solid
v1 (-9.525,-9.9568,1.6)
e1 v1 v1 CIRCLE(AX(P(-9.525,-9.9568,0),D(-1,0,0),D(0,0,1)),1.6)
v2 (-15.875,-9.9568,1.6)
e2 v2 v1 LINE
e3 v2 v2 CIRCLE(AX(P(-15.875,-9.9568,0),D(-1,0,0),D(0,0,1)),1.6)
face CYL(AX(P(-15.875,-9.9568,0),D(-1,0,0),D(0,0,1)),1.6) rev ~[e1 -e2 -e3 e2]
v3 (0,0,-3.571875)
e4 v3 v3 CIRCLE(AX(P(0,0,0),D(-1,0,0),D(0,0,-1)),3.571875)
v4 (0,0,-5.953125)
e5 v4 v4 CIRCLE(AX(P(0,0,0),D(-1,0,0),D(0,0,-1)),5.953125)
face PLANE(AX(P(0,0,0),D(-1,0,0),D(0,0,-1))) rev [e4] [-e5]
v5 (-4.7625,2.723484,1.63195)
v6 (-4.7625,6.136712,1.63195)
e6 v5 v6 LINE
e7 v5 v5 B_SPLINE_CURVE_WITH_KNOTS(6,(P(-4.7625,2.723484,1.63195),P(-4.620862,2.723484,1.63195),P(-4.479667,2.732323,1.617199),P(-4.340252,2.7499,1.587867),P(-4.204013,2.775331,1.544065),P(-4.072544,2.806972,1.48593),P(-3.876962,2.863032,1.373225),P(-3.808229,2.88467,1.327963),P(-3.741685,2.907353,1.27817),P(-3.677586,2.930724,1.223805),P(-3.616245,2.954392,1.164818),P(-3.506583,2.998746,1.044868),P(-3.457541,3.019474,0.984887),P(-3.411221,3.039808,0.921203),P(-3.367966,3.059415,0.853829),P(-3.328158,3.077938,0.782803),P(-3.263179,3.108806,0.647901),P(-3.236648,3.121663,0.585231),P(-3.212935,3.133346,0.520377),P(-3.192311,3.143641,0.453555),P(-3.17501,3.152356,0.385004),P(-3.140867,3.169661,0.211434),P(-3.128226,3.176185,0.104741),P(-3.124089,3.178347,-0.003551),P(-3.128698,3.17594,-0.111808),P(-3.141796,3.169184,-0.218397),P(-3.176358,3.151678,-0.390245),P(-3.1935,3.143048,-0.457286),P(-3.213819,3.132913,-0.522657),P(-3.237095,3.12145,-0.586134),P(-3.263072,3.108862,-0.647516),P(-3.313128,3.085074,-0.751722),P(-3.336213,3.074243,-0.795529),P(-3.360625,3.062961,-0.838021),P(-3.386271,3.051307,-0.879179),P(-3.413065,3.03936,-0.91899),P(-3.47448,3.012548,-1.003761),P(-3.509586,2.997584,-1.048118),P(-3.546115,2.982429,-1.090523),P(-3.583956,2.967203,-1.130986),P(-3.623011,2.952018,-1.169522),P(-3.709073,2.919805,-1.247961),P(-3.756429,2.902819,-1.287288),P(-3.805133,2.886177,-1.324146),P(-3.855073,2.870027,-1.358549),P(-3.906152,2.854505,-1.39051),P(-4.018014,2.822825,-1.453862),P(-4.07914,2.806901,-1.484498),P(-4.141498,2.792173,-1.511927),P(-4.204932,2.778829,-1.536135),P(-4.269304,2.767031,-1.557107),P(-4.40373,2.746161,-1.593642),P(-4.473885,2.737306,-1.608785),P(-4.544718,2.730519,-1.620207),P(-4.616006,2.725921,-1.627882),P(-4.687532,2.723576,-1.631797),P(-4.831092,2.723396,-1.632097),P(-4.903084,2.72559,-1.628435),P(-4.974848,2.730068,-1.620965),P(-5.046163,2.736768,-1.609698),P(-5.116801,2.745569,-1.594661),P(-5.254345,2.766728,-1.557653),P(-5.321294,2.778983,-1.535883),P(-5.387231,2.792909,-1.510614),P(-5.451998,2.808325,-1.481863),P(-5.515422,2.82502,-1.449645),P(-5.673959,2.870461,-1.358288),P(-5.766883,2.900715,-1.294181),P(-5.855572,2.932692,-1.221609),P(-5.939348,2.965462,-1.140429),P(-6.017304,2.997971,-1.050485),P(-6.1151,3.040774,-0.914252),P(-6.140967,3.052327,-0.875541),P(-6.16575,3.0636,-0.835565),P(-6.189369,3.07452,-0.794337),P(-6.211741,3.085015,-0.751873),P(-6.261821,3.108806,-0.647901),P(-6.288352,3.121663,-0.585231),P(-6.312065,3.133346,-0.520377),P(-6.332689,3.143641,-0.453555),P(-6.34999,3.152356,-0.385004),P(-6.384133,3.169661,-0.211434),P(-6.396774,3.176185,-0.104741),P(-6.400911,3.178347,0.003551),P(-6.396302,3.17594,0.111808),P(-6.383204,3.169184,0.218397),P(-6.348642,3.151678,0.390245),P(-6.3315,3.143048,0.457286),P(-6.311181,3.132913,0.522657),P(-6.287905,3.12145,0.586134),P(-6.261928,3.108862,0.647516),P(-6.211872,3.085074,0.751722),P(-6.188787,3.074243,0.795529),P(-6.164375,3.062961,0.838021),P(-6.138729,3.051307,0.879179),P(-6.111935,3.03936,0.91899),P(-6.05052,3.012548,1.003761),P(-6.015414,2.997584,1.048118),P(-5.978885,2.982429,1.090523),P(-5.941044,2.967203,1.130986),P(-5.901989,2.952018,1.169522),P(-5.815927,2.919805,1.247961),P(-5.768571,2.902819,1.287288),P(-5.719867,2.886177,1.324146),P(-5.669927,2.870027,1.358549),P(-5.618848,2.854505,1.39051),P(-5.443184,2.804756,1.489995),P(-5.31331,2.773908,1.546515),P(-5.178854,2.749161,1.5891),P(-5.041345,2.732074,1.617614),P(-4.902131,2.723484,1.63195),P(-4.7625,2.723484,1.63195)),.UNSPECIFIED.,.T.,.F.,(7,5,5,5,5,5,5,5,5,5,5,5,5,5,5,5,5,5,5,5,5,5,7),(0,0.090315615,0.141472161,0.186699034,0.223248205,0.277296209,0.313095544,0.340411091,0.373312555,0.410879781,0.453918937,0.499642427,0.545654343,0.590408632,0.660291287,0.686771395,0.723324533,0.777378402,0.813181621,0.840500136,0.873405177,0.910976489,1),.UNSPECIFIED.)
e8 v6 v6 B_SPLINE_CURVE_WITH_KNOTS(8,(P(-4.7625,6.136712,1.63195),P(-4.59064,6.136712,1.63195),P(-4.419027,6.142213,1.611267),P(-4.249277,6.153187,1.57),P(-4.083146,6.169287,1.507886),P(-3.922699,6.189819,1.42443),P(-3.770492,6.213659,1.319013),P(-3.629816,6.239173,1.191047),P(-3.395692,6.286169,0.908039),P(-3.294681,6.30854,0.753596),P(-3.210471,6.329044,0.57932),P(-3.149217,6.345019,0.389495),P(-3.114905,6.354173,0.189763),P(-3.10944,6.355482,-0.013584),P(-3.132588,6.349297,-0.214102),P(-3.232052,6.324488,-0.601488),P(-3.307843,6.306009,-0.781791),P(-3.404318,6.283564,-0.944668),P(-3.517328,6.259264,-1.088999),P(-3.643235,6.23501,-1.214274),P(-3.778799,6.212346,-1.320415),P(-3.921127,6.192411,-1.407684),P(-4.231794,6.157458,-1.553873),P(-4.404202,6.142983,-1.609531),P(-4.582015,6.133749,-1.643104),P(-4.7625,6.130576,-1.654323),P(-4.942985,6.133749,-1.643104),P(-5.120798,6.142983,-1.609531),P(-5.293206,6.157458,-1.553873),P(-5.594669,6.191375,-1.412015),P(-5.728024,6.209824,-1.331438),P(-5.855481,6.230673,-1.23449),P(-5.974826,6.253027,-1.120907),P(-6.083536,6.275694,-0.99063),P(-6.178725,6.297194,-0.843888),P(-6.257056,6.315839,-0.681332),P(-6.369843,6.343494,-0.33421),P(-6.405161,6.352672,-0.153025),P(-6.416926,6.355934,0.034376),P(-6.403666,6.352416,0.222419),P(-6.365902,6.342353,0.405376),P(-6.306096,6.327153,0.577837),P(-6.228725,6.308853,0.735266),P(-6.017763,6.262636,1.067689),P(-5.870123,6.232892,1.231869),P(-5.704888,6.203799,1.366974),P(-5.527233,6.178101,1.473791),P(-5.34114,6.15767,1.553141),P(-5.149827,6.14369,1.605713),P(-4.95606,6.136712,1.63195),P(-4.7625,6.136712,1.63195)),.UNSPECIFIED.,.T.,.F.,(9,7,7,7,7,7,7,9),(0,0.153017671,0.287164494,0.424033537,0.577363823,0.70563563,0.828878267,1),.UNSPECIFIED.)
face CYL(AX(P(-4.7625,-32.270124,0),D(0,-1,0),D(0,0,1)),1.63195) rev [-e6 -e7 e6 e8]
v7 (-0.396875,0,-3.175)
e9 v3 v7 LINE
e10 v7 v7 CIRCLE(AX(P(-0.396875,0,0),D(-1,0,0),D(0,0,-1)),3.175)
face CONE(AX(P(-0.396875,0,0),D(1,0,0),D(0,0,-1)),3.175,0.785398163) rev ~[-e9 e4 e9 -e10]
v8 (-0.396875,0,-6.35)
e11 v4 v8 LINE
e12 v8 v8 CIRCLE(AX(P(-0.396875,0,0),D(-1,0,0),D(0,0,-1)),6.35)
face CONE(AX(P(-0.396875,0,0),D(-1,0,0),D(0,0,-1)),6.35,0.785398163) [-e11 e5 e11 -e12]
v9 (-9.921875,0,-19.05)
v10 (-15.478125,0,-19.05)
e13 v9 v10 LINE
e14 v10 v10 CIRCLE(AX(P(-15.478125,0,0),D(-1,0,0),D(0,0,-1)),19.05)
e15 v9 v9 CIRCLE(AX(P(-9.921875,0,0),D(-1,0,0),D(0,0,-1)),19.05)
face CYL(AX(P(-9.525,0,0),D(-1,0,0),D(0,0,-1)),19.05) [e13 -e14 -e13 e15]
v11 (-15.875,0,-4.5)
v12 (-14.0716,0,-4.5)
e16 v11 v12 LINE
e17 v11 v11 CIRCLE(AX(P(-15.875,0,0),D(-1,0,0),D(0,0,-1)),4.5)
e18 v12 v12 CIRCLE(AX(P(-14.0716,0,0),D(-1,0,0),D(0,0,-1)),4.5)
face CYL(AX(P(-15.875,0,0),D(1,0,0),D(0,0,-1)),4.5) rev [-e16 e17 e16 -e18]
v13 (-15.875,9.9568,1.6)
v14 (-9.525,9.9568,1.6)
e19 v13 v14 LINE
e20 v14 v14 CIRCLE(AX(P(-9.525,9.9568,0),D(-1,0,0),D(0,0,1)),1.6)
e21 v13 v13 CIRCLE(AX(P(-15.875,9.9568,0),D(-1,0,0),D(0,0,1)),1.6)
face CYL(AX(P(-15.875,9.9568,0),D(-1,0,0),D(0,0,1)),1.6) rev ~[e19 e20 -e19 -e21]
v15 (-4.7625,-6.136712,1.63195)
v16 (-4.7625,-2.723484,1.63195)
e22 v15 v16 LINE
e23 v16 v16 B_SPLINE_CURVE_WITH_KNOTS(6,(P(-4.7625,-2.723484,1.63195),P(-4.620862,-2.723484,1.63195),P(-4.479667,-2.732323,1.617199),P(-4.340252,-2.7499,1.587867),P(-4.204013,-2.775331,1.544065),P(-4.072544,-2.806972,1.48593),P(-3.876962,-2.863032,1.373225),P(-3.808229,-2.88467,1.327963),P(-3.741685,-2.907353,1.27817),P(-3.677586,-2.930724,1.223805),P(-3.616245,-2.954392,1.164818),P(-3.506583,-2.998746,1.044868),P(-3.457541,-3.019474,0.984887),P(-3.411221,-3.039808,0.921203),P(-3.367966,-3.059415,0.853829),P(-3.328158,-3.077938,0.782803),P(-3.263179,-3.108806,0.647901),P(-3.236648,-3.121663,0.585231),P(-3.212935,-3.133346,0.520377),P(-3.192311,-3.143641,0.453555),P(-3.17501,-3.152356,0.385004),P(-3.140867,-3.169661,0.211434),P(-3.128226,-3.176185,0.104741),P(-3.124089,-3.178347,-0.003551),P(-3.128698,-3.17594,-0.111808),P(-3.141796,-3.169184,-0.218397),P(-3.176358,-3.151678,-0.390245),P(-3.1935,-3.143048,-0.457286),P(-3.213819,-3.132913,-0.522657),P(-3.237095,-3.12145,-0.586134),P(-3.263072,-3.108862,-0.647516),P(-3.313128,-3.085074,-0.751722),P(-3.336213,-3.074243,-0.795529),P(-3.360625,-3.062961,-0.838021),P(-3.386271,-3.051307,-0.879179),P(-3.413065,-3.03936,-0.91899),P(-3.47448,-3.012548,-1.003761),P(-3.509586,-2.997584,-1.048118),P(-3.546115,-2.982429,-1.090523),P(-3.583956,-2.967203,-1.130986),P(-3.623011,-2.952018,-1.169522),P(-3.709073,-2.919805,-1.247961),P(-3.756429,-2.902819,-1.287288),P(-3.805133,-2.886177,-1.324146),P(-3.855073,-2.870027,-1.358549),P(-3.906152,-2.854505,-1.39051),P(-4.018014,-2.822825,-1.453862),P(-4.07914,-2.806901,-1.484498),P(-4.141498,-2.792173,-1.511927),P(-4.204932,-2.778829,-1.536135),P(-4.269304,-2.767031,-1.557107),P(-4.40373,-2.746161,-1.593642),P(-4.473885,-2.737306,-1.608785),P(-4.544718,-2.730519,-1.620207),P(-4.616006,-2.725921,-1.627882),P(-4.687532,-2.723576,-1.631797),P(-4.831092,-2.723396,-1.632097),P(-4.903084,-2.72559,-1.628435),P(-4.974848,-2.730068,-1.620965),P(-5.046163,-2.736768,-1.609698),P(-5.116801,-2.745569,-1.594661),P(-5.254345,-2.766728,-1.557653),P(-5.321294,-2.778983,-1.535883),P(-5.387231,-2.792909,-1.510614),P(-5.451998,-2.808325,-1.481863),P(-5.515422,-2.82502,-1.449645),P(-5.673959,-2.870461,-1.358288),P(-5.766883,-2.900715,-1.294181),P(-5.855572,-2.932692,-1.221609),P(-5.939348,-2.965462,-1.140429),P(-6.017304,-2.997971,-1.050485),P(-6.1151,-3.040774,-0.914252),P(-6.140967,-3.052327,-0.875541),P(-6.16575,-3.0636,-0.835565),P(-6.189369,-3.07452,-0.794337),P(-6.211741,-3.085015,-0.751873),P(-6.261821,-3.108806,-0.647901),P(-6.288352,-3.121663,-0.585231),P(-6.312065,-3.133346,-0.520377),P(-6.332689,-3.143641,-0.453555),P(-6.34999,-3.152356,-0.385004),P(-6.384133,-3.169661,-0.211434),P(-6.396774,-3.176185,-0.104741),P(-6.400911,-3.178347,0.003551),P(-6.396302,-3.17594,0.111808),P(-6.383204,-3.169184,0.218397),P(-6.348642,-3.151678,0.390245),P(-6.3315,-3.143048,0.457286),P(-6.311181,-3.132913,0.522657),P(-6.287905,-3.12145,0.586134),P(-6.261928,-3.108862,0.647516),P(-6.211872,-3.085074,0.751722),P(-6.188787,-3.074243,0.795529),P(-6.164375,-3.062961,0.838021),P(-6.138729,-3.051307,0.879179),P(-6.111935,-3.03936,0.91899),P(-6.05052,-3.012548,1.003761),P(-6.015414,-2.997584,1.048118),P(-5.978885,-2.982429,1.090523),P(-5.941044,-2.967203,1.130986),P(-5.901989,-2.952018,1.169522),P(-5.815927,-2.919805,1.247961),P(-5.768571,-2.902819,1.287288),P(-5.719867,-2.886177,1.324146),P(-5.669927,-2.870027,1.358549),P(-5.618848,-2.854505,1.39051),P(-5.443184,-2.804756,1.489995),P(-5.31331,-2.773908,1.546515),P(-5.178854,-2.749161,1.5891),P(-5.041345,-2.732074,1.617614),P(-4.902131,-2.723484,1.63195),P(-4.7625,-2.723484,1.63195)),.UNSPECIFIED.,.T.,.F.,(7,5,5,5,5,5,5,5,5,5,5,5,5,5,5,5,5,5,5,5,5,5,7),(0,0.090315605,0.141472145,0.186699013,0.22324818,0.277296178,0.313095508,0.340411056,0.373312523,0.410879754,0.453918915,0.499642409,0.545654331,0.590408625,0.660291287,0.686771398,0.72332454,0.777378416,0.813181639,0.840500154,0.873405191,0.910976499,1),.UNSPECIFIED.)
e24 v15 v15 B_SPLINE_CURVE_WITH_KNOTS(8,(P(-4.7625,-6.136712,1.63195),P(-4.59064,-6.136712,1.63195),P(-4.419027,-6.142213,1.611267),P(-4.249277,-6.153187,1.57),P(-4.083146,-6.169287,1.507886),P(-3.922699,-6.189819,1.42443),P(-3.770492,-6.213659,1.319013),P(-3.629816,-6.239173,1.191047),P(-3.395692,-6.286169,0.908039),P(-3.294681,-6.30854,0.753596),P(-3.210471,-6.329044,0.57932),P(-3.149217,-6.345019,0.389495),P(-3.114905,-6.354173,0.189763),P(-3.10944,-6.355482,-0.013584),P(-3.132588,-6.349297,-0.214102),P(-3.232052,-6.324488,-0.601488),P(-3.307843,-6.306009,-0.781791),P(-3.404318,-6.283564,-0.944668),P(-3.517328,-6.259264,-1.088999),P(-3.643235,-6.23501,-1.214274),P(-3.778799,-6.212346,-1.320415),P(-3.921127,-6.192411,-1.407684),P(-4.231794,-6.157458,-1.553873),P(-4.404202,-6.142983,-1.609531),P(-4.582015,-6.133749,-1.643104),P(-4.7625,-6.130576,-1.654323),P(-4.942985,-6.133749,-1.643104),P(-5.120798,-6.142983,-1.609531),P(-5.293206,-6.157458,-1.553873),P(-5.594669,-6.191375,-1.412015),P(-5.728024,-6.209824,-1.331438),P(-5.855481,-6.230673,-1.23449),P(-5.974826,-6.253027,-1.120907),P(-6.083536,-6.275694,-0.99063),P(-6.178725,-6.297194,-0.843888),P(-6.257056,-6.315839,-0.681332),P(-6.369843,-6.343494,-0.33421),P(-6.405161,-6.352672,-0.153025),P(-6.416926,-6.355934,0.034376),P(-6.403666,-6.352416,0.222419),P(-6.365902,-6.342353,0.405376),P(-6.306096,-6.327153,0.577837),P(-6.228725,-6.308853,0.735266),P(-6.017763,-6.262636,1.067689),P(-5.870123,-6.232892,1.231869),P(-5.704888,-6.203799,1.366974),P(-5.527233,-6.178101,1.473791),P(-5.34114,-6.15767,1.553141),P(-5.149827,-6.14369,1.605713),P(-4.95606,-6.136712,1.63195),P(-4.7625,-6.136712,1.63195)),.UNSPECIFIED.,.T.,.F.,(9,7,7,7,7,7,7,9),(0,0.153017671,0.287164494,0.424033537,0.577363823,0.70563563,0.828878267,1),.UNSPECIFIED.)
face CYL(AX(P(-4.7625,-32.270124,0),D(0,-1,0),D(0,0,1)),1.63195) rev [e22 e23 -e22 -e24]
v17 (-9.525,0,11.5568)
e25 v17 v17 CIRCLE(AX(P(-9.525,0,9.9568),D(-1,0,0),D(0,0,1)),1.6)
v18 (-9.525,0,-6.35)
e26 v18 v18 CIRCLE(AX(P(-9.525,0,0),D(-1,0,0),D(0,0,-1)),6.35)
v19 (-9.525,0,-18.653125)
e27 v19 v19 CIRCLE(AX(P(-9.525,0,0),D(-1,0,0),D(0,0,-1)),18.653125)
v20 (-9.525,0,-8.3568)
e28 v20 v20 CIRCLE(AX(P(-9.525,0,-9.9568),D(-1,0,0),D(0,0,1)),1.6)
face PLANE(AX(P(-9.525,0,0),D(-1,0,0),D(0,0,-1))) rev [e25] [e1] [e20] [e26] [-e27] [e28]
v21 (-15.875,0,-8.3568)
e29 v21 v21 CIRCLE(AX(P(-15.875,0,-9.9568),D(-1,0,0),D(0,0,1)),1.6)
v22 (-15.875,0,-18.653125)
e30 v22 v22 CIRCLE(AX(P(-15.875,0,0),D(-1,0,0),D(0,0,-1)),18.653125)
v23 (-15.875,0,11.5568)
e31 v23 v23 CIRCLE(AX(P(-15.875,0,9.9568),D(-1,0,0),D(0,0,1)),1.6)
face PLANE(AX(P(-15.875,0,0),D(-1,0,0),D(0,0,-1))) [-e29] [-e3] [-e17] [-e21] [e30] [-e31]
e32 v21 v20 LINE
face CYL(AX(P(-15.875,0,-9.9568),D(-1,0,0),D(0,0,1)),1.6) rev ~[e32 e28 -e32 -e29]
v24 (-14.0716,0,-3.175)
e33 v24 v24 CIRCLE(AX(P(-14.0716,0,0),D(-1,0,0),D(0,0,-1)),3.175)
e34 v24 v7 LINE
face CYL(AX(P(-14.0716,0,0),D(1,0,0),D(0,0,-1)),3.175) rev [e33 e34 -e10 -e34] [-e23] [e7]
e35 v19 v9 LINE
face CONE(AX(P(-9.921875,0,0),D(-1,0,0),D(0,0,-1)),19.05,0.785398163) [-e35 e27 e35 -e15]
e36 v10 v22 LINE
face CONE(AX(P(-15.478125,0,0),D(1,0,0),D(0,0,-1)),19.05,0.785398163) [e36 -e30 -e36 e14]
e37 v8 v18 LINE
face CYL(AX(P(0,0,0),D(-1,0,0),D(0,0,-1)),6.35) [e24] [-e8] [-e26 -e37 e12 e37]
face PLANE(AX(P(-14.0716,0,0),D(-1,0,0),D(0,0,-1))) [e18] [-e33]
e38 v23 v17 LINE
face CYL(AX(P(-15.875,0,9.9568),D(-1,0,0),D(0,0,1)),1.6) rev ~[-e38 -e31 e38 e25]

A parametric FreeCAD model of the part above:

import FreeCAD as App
import Part
import Sketcher
from FreeCAD import Vector
Q = App.Units.Quantity


def edges_at(feature, points):
    """Names of the edges that pass closest to the given points."""
    edges = feature.Shape.Edges
    near = lambda p: min(range(len(edges)), key=lambda i: edges[i].distToShape(Part.Vertex(*p))[0])
    return sorted({f"Edge{near(p) + 1}" for p in points})

doc = App.newDocument("Part")
body = doc.addObject("PartDesign::Body", "Body")

sketch1 = body.newObject("Sketcher::SketchObject", "Sketch")
sketch1.AttachmentSupport = (doc.getObject("XY_Plane"), [""])
sketch1.MapMode = "FlatFace"
sketch1.addGeometry(Part.LineSegment(Vector(0, 3.175, 0), Vector(0, 6.35, 0)), False)
sketch1.addGeometry(Part.LineSegment(Vector(0, 6.35, 0), Vector(-9.525, 6.35, 0)), False)
sketch1.addGeometry(Part.LineSegment(Vector(-9.525, 6.35, 0), Vector(-9.525, 19.05, 0)), False)
sketch1.addGeometry(Part.LineSegment(Vector(-9.525, 19.05, 0), Vector(-15.875, 19.05, 0)), False)
sketch1.addGeometry(Part.LineSegment(Vector(-15.875, 19.05, 0), Vector(-15.875, 4.5, 0)), False)
sketch1.addGeometry(Part.LineSegment(Vector(-15.875, 4.5, 0), Vector(-14.0716, 4.5, 0)), False)
sketch1.addGeometry(Part.LineSegment(Vector(-14.0716, 4.5, 0), Vector(-14.0716, 3.175, 0)), False)
sketch1.addGeometry(Part.LineSegment(Vector(-14.0716, 3.175, 0), Vector(0, 3.175, 0)), False)
sketch1.addConstraint(Sketcher.Constraint("Coincident", 0, 2, 1, 1))
sketch1.addConstraint(Sketcher.Constraint("Coincident", 1, 2, 2, 1))
sketch1.addConstraint(Sketcher.Constraint("Coincident", 2, 2, 3, 1))
sketch1.addConstraint(Sketcher.Constraint("Coincident", 3, 2, 4, 1))
sketch1.addConstraint(Sketcher.Constraint("Coincident", 4, 2, 5, 1))
sketch1.addConstraint(Sketcher.Constraint("Coincident", 5, 2, 6, 1))
sketch1.addConstraint(Sketcher.Constraint("Coincident", 6, 2, 7, 1))
sketch1.addConstraint(Sketcher.Constraint("Coincident", 7, 2, 0, 1))
sketch1.addConstraint(Sketcher.Constraint("Vertical", 0))
sketch1.addConstraint(Sketcher.Constraint("Horizontal", 1))
sketch1.addConstraint(Sketcher.Constraint("Vertical", 2))
sketch1.addConstraint(Sketcher.Constraint("Horizontal", 3))
sketch1.addConstraint(Sketcher.Constraint("Vertical", 4))
sketch1.addConstraint(Sketcher.Constraint("Horizontal", 5))
sketch1.addConstraint(Sketcher.Constraint("Vertical", 6))
sketch1.addConstraint(Sketcher.Constraint("Horizontal", 7))
sketch1.addConstraint(Sketcher.Constraint("PointOnObject", 0, 2, -2))
sketch1.addConstraint(Sketcher.Constraint("DistanceY", 2, 1, 2, 2, Q("0.5 in")))
sketch1.addConstraint(Sketcher.Constraint("DistanceX", 3, 2, 3, 1, Q("0.25 in")))
sketch1.addConstraint(Sketcher.Constraint("DistanceX", 1, 2, 1, 1, Q("0.375 in")))
sketch1.addConstraint(Sketcher.Constraint("DistanceX", 5, 1, 5, 2, Q("0.071 in")))
sketch1.addConstraint(Sketcher.Constraint("DistanceY", 0, 1, 0, 2, Q("0.125 in")))
sketch1.addConstraint(Sketcher.Constraint("DistanceY", -1, 1, 0, 2, Q("0.25 in")))
sketch1.addConstraint(Sketcher.Constraint("DistanceY", 4, 2, 4, 1, Q("14.55 mm")))
revolution = body.newObject("PartDesign::Revolution", "Revolution")
revolution.Profile = sketch1
revolution.ReferenceAxis = (sketch1, ["H_Axis"])
revolution.Angle = 360

sketch2 = body.newObject("Sketcher::SketchObject", "Sketch001")
sketch2.AttachmentSupport = (doc.getObject("XZ_Plane"), [""])
sketch2.MapMode = "FlatFace"
sketch2.addGeometry(Part.Circle(Vector(-4.7625, 0, 0), Vector(0, 0, 1), 1.63195), False)
sketch2.addConstraint(Sketcher.Constraint("PointOnObject", 0, 3, -1))
sketch2.addConstraint(Sketcher.Constraint("Diameter", 0, Q("0.1285 in")))
sketch2.addConstraint(Sketcher.Constraint("DistanceX", 0, 3, -1, 1, Q("0.1875 in")))
pocket1 = body.newObject("PartDesign::Pocket", "Pocket")
pocket1.Profile = sketch2
pocket1.Type = "ThroughAll"
pocket1.Midplane = True

sketch3 = body.newObject("Sketcher::SketchObject", "Sketch002")
sketch3.AttachmentSupport = (doc.getObject("YZ_Plane"), [""])
sketch3.MapMode = "FlatFace"
sketch3.AttachmentOffset = App.Placement(Vector(0, 0, -0.625 * 25.4), App.Rotation())
sketch3.addGeometry(Part.Circle(Vector(0, -9.9568, 0), Vector(0, 0, 1), 1.6), False)
sketch3.addGeometry(Part.Circle(Vector(9.9568, 0, 0), Vector(0, 0, 1), 1.6), False)
sketch3.addGeometry(Part.Circle(Vector(0, 9.9568, 0), Vector(0, 0, 1), 1.6), False)
sketch3.addGeometry(Part.Circle(Vector(-9.9568, 0, 0), Vector(0, 0, 1), 1.6), False)
sketch3.addConstraint(Sketcher.Constraint("Equal", 0, 1))
sketch3.addConstraint(Sketcher.Constraint("Equal", 1, 2))
sketch3.addConstraint(Sketcher.Constraint("Equal", 2, 3))
sketch3.addConstraint(Sketcher.Constraint("Symmetric", 0, 3, 2, 3, -1, 1))
sketch3.addConstraint(Sketcher.Constraint("Symmetric", 1, 3, 3, 3, -1, 1))
sketch3.addConstraint(Sketcher.Constraint("PointOnObject", 0, 3, -2))
sketch3.addConstraint(Sketcher.Constraint("PointOnObject", 1, 3, -1))
sketch3.addConstraint(Sketcher.Constraint("Diameter", 0, Q("3.2 mm")))
sketch3.addConstraint(Sketcher.Constraint("DistanceY", 0, 3, -1, 1, Q("0.392 in")))
sketch3.addConstraint(Sketcher.Constraint("DistanceX", -1, 1, 1, 3, Q("0.392 in")))
pocket2 = body.newObject("PartDesign::Pocket", "Pocket001")
pocket2.Profile = sketch3
pocket2.Type = "ThroughAll"
pocket2.Reversed = True
doc.recompute()

chamfer = body.newObject("PartDesign::Chamfer", "Chamfer")
chamfer.Base = (pocket2, edges_at(pocket2, [
    (0, 0, 6.35),
    (0, 0, 3.175),
    (-15.875, 0, 19.05),
    (-9.525, 0, 19.05),
]))
chamfer.Size = Q("0.015625 in")

doc.recompute()
